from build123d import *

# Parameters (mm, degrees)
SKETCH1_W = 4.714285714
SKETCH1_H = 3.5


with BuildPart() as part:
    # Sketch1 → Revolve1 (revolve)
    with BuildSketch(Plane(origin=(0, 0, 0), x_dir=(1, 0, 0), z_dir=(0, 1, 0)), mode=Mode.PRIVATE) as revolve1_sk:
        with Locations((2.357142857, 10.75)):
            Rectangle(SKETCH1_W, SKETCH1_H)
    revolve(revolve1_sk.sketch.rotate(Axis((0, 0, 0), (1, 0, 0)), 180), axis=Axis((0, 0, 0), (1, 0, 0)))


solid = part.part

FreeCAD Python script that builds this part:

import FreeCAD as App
import Part
import Sketcher

doc = App.newDocument("Part")
body = doc.addObject("PartDesign::Body", "Body")

# Sketch on XZ plane
sketch1 = body.newObject("Sketcher::SketchObject", "Sketch")
sketch1.AttachmentSupport = (doc.getObject("XZ_Plane"), [""])
sketch1.MapMode = "FlatFace"
sketch1.addGeometry(Part.LineSegment(App.Vector(0, -12.5, 0), App.Vector(0, -9, 0)), False)
sketch1.addGeometry(Part.LineSegment(App.Vector(0, -9, 0), App.Vector(4.714286, -9, 0)), False)
sketch1.addGeometry(Part.LineSegment(App.Vector(4.714286, -9, 0), App.Vector(4.714286, -12.5, 0)), False)
sketch1.addGeometry(Part.LineSegment(App.Vector(4.714286, -12.5, 0), App.Vector(0, -12.5, 0)), False)
sketch1.addConstraint(Sketcher.Constraint("Coincident", 0, 2, 1, 1))
sketch1.addConstraint(Sketcher.Constraint("Coincident", 1, 2, 2, 1))
sketch1.addConstraint(Sketcher.Constraint("Coincident", 2, 2, 3, 1))
sketch1.addConstraint(Sketcher.Constraint("Coincident", 3, 2, 0, 1))
sketch1.addConstraint(Sketcher.Constraint("Vertical", 0))
sketch1.addConstraint(Sketcher.Constraint("Horizontal", 1))
sketch1.addConstraint(Sketcher.Constraint("Vertical", 2))
sketch1.addConstraint(Sketcher.Constraint("Horizontal", 3))
sketch1.addConstraint(Sketcher.Constraint("PointOnObject", 0, 2, -2))
sketch1.addConstraint(Sketcher.Constraint("DistanceY", 0, 1, 0, 2, 3.5))
sketch1.addConstraint(Sketcher.Constraint("DistanceY", 0, 2, -1, 1, 9.0))
sketch1.addConstraint(Sketcher.Constraint("DistanceX", 1, 1, 1, 2, 4.714286))
revolution = body.newObject("PartDesign::Revolution", "Revolution")
revolution.Profile = sketch1
revolution.ReferenceAxis = (sketch1, ["H_Axis"])
revolution.Angle = 360

doc.recompute()
